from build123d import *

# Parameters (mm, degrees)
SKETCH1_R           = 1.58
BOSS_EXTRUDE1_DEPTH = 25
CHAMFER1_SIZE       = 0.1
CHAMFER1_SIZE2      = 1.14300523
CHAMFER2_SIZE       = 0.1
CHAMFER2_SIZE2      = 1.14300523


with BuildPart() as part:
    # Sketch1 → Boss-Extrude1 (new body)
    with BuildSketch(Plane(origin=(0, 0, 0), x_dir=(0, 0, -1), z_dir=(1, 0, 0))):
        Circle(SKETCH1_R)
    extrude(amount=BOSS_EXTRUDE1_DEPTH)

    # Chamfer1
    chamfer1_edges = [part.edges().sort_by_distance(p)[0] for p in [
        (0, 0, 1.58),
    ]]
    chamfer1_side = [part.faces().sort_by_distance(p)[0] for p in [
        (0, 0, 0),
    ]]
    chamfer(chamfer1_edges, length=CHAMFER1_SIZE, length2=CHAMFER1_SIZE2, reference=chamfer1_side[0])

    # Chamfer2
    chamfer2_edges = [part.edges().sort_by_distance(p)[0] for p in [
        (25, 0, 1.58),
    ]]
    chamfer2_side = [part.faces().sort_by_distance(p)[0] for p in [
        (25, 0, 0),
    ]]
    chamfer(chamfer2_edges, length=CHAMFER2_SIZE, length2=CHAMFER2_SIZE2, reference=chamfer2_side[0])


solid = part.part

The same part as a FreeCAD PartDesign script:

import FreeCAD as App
import Part
import Sketcher


def edges_at(feature, points):
    """Names of the edges that pass closest to the given points."""
    edges = feature.Shape.Edges
    near = lambda p: min(range(len(edges)), key=lambda i: edges[i].distToShape(Part.Vertex(*p))[0])
    return sorted({f"Edge{near(p) + 1}" for p in points})

doc = App.newDocument("Part")
body = doc.addObject("PartDesign::Body", "Body")

# Sketch on YZ plane
sketch1 = body.newObject("Sketcher::SketchObject", "Sketch")
sketch1.AttachmentSupport = (doc.getObject("YZ_Plane"), [""])
sketch1.MapMode = "FlatFace"
sketch1.addGeometry(Part.Circle(App.Vector(0, 0, 0), App.Vector(0, 0, 1), 1.6), False)
sketch1.addConstraint([
    Sketcher.Constraint("Coincident", 0, 3, -1, 1),
    Sketcher.Constraint("Diameter", 0, 3.16),
])
pad1 = body.newObject("PartDesign::Pad", "Pad")
pad1.Profile = sketch1
pad1.Length = 25
doc.recompute()

chamfer = body.newObject("PartDesign::Chamfer", "Chamfer")
chamfer.Base = (pad1, edges_at(pad1, [(0, 0, 1.58)]))
chamfer.ChamferType = "Two distances"
chamfer.Size = 0.1
chamfer.Size2 = 1.143005
chamfer.FlipDirection = True
doc.recompute()

chamfer2 = body.newObject("PartDesign::Chamfer", "Chamfer001")
chamfer2.Base = (chamfer, edges_at(chamfer, [(25, 0, 1.58)]))
chamfer2.ChamferType = "Two distances"
chamfer2.Size = 0.1
chamfer2.Size2 = 1.143005
chamfer2.FlipDirection = True

doc.recompute()
